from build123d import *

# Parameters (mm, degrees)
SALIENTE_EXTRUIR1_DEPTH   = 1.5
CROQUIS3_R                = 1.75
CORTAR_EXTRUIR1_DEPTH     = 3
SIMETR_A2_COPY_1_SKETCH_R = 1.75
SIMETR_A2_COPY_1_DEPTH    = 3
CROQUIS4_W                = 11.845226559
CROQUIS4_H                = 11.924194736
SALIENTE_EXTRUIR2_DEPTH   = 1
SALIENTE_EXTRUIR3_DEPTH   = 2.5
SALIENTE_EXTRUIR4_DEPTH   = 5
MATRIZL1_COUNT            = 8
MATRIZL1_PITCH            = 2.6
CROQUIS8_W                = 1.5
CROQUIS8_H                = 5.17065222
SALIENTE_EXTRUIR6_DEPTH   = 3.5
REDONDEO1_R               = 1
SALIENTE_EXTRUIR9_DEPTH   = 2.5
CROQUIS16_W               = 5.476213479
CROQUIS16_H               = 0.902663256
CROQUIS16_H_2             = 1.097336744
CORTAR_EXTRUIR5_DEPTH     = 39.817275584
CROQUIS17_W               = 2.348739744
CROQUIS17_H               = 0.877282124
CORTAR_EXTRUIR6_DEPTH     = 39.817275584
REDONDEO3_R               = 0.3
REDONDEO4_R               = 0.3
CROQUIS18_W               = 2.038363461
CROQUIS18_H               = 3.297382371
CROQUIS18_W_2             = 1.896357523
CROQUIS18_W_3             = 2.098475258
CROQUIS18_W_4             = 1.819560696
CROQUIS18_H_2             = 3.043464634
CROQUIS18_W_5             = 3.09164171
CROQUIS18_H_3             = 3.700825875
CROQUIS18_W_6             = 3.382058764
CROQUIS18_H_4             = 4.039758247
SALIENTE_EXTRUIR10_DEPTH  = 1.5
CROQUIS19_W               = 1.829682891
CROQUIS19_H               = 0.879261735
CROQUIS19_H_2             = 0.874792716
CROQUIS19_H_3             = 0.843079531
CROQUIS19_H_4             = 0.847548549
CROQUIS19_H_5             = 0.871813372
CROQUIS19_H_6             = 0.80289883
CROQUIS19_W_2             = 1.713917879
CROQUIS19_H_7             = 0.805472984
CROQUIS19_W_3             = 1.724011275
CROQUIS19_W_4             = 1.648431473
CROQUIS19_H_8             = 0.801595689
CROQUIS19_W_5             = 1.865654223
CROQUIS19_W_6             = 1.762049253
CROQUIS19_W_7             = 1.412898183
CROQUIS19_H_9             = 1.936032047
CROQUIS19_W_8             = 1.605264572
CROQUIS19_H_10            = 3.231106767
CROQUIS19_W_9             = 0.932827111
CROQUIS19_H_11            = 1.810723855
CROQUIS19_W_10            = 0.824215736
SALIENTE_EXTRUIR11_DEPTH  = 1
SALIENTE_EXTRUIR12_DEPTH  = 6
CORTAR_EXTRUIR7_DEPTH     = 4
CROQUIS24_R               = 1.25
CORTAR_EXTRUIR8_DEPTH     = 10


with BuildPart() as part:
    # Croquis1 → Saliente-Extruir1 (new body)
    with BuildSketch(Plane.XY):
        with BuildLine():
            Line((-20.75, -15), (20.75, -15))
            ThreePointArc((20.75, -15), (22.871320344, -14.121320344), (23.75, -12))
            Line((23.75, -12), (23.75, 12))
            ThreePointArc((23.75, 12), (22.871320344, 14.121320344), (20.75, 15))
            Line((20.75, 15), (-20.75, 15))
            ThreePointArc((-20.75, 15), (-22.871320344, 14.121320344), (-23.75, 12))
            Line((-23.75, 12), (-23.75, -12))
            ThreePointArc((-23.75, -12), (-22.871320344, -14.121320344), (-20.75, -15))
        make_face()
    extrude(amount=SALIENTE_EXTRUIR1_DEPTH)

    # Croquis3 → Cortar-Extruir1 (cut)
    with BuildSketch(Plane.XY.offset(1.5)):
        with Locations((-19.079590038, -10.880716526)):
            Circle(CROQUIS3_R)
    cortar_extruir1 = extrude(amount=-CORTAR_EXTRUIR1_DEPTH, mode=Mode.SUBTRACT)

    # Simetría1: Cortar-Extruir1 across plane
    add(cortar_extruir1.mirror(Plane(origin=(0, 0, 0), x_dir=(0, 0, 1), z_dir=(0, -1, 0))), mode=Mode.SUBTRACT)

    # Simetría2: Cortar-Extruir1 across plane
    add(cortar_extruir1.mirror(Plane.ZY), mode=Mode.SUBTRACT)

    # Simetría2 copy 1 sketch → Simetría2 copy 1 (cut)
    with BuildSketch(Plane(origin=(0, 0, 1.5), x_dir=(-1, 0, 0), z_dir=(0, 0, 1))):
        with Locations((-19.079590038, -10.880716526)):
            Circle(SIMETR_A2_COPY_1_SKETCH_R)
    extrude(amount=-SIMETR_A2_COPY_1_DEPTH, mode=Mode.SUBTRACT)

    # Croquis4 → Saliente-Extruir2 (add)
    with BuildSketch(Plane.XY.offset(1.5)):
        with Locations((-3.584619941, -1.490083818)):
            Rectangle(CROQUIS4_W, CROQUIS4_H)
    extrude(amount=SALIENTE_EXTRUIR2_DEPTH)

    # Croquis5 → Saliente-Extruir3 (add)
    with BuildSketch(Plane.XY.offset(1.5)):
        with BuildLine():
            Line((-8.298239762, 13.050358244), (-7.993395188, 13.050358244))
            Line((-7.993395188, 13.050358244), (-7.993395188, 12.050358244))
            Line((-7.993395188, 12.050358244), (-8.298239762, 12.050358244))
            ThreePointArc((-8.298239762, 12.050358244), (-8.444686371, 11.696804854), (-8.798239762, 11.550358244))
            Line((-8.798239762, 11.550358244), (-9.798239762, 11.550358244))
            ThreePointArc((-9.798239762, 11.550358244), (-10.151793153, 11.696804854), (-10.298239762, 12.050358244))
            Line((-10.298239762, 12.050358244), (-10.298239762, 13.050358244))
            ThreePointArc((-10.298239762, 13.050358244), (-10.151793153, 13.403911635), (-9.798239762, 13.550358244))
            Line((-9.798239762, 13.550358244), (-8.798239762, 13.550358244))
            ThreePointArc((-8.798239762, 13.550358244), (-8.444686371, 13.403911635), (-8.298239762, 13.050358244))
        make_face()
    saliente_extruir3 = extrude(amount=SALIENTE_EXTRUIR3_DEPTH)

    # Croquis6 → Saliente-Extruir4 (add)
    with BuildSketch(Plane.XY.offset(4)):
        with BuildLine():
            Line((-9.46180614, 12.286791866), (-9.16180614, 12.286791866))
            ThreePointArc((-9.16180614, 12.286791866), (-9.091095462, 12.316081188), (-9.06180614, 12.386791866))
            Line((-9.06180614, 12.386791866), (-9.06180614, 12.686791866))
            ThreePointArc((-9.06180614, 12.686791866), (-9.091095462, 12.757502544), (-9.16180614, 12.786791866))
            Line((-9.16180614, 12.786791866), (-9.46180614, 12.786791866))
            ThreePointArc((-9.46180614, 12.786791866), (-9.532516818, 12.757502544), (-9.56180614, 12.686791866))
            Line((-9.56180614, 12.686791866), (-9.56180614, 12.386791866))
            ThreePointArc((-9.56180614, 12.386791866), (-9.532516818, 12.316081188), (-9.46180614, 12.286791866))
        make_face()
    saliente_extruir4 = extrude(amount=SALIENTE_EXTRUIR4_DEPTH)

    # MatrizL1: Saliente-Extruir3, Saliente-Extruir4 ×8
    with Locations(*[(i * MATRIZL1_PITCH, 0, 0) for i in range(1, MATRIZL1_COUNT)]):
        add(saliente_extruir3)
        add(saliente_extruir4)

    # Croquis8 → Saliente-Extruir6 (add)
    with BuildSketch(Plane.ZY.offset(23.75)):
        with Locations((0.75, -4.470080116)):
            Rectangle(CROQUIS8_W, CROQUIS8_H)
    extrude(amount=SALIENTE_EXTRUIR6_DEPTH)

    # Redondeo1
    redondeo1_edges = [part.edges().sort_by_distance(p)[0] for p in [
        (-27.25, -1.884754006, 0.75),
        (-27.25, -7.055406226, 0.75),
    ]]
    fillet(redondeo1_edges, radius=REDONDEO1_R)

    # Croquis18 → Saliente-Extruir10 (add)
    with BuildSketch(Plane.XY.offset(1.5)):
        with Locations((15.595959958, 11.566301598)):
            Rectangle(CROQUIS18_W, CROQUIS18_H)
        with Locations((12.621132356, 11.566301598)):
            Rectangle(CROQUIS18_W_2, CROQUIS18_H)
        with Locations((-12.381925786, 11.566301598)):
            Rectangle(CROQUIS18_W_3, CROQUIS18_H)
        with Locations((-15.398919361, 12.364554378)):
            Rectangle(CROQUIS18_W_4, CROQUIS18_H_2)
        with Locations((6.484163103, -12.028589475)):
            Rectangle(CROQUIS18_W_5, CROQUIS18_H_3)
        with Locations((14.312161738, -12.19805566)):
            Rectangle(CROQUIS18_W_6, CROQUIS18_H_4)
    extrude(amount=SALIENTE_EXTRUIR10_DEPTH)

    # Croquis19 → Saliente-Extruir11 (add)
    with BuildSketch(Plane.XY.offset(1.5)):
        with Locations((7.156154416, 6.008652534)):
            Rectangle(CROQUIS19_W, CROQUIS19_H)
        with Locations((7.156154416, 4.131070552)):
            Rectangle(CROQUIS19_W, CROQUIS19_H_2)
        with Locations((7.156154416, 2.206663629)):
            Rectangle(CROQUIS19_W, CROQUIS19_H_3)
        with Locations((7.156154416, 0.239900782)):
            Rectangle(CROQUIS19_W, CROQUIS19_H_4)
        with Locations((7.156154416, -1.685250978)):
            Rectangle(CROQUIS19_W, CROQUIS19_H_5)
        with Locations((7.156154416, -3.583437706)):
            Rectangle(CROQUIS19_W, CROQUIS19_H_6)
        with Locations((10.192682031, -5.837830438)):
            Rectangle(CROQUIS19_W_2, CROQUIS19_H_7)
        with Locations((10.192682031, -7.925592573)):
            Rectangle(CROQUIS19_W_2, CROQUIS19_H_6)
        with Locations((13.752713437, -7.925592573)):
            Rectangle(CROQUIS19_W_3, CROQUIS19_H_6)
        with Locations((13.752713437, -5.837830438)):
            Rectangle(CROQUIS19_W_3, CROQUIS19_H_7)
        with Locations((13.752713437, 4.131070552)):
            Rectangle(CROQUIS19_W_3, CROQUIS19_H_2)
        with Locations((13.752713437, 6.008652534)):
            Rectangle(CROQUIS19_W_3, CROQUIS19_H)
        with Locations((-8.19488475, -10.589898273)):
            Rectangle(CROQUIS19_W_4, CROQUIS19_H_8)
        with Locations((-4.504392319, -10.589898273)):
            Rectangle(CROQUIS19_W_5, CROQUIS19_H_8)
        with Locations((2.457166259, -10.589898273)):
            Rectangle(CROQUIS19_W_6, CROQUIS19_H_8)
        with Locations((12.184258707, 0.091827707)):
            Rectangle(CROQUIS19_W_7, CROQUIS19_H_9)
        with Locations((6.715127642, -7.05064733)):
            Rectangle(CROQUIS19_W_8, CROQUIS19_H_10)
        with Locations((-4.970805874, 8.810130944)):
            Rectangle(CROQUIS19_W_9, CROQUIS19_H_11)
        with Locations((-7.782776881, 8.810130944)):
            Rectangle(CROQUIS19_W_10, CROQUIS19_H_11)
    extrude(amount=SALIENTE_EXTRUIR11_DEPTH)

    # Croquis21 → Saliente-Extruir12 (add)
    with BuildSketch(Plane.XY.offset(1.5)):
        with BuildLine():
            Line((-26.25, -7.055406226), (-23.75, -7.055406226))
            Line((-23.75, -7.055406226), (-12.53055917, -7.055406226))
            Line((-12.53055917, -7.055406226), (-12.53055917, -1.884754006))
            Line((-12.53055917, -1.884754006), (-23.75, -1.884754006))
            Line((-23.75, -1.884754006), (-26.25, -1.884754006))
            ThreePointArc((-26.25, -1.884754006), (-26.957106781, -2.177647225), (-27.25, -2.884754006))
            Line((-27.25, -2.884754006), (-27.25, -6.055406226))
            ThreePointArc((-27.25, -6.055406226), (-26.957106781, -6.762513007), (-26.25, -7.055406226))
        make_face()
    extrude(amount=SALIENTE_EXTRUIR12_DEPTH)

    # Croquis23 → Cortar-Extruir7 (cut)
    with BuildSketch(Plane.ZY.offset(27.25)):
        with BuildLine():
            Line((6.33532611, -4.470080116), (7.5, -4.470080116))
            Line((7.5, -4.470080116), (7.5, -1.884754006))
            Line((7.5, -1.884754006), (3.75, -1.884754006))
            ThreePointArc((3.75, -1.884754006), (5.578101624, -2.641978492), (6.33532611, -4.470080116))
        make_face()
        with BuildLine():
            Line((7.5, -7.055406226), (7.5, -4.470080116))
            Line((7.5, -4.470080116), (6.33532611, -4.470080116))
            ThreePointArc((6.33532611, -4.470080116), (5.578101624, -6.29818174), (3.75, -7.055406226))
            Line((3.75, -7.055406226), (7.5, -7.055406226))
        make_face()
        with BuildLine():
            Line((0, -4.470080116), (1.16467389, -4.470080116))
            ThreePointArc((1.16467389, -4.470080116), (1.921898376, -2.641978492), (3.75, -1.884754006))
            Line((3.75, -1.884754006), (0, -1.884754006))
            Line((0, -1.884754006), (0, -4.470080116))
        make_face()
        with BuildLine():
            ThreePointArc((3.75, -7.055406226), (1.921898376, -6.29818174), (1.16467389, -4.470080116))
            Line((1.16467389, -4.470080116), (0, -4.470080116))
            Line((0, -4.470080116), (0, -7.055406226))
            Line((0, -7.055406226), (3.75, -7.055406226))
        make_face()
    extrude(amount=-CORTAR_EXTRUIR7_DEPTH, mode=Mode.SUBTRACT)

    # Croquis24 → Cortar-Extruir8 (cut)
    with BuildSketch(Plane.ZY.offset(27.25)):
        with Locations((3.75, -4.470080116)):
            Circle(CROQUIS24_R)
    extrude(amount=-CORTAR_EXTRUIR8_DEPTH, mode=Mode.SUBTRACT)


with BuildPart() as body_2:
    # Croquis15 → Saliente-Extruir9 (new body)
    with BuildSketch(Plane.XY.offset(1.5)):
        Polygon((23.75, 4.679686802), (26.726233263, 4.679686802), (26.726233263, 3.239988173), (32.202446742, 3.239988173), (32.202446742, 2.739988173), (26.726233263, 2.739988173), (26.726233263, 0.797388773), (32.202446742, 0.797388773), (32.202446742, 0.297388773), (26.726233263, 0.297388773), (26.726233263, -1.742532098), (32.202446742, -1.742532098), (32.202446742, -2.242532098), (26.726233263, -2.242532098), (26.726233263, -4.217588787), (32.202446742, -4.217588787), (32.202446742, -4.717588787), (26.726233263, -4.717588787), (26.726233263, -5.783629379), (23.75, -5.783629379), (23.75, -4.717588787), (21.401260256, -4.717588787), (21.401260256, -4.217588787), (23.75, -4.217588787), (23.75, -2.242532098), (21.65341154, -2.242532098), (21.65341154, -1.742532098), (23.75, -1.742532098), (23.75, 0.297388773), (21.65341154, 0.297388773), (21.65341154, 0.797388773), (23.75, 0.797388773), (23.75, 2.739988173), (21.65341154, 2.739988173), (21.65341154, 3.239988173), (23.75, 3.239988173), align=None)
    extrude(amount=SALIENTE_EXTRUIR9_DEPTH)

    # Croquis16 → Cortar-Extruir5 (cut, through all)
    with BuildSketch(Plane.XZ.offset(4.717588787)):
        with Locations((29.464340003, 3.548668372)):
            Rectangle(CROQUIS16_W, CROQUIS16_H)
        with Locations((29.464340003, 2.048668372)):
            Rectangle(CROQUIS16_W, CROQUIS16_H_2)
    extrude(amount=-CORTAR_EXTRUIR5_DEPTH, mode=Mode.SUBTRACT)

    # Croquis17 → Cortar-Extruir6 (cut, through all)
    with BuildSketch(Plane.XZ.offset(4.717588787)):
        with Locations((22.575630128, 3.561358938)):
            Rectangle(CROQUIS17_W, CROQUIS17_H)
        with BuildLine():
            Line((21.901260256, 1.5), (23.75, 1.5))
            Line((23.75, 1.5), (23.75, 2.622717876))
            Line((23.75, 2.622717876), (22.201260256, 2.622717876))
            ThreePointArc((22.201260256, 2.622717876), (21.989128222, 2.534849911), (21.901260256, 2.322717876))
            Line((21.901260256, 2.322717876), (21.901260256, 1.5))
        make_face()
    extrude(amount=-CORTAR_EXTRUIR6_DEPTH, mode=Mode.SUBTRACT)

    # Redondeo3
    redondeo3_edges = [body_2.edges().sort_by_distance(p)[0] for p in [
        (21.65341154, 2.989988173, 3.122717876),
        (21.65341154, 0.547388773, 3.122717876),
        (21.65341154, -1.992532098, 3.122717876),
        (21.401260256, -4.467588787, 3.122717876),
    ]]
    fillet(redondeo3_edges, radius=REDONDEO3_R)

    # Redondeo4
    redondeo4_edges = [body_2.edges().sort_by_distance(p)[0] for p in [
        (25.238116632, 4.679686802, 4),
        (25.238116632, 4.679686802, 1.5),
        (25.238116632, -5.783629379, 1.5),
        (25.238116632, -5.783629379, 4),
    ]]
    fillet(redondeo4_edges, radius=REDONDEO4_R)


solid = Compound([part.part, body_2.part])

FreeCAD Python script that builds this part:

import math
import FreeCAD as App
import Part
import Sketcher

V = App.Vector


def edges_at(feature, points):
    """Names of the edges that pass closest to the given points."""
    edges = feature.Shape.Edges
    near = lambda p: min(range(len(edges)), key=lambda i: edges[i].distToShape(Part.Vertex(*p))[0])
    return sorted({f"Edge{near(p) + 1}" for p in points})


def add_polygon(sketch, points):
    """Adds a closed chain of lines whose ends are joined by coincident constraints."""
    first, n = sketch.GeometryCount, len(points)
    for a, b in zip(points, points[1:] + points[:1]):
        sketch.addGeometry(Part.LineSegment(App.Vector(*a, 0), App.Vector(*b, 0)), False)
    for i in range(n):
        sketch.addConstraint(Sketcher.Constraint("Coincident", first + i, 2, first + (i + 1) % n, 1))

doc = App.newDocument("Part")
body = doc.addObject("PartDesign::Body", "Body")

sketch1 = doc.addObject("Sketcher::SketchObject", "Sketch")
body.addObject(sketch1)
sketch1.AttachmentSupport = (doc.XY_Plane, [""])
sketch1.MapMode = "FlatFace"
sketch1.addGeometry([
    Part.LineSegment(V(-20.8, -15, 0), V(20.8, -15, 0)),
    Part.ArcOfCircle(Part.Circle(V(20.8, -12, 0), V(0, 0, 1), 3), math.radians(-90), math.radians(0)),
    Part.LineSegment(V(23.8, -12, 0), V(23.8, 12, 0)),
    Part.ArcOfCircle(Part.Circle(V(20.8, 12, 0), V(0, 0, 1), 3), math.radians(0), math.radians(90)),
    Part.LineSegment(V(20.8, 15, 0), V(-20.8, 15, 0)),
    Part.ArcOfCircle(Part.Circle(V(-20.8, 12, 0), V(0, 0, 1), 3), math.radians(90), math.radians(180)),
    Part.LineSegment(V(-23.8, 12, 0), V(-23.8, -12, 0)),
    Part.ArcOfCircle(Part.Circle(V(-20.8, -12, 0), V(0, 0, 1), 3), math.radians(180), math.radians(270)),
], False)
sketch1.addConstraint([
    Sketcher.Constraint("Tangent", 0, 2, 1, 1),
    Sketcher.Constraint("Tangent", 1, 2, 2, 1),
    Sketcher.Constraint("Tangent", 2, 2, 3, 1),
    Sketcher.Constraint("Tangent", 3, 2, 4, 1),
    Sketcher.Constraint("Tangent", 4, 2, 5, 1),
    Sketcher.Constraint("Tangent", 5, 2, 6, 1),
    Sketcher.Constraint("Tangent", 6, 2, 7, 1),
    Sketcher.Constraint("Tangent", 7, 2, 0, 1),
    Sketcher.Constraint("Horizontal", 0),
    Sketcher.Constraint("Vertical", 2),
    Sketcher.Constraint("Horizontal", 4),
    Sketcher.Constraint("Vertical", 6),
    Sketcher.Constraint("Equal", 1, 3),
    Sketcher.Constraint("Equal", 3, 5),
    Sketcher.Constraint("Equal", 5, 7),
    Sketcher.Constraint("Symmetric", 1, 3, 5, 3, -1, 1),
    Sketcher.Constraint("Radius", 1, 3.0),
    Sketcher.Constraint("DistanceY", 2, 1, 2, 2, 24.0),
    Sketcher.Constraint("DistanceX", 0, 1, 0, 2, 41.5),
])
pad1 = doc.addObject("PartDesign::Pad", "Pad")
body.addObject(pad1)
pad1.Profile = sketch1
pad1.Length = 1.5

sketch2 = doc.addObject("Sketcher::SketchObject", "Sketch001")
body.addObject(sketch2)
sketch2.AttachmentSupport = (doc.XY_Plane, [""])
sketch2.MapMode = "FlatFace"
sketch2.AttachmentOffset = App.Placement(V(0, 0, 1.5), App.Rotation())
sketch2.addGeometry(Part.Circle(V(-19.1, -10.9, 0), V(0, 0, 1), 1.8), False)
sketch2.addConstraint([
    Sketcher.Constraint("Diameter", 0, 3.5),
    Sketcher.Constraint("DistanceX", 0, 3, -1, 1, 19.07959),
    Sketcher.Constraint("DistanceY", 0, 3, -1, 1, 10.880717),
])
pocket1 = doc.addObject("PartDesign::Pocket", "Pocket")
body.addObject(pocket1)
pocket1.Profile = sketch2
pocket1.Length = 3
doc.recompute()

mirrored = doc.addObject("PartDesign::Mirrored", "Mirrored")
body.addObject(mirrored)
mirrored.Originals = [pocket1]
mirrored.MirrorPlane = (doc.XZ_Plane, [""])
body.Tip = mirrored
doc.recompute()

mirrored2 = doc.addObject("PartDesign::Mirrored", "Mirrored001")
body.addObject(mirrored2)
mirrored2.Originals = [pocket1]
mirrored2.MirrorPlane = (doc.YZ_Plane, [""])
body.Tip = mirrored2

sketch3 = doc.addObject("Sketcher::SketchObject", "Sketch002")
body.addObject(sketch3)
sketch3.AttachmentSupport = (doc.XY_Plane, [""])
sketch3.MapMode = "FlatFace"
sketch3.AttachmentOffset = App.Placement(V(0, 0, 1.5), App.Rotation())
sketch3.addGeometry(Part.Circle(V(19.1, 10.9, 0), V(0, 0, 1), 1.8), False)
sketch3.addConstraint([
    Sketcher.Constraint("Diameter", 0, 3.5),
    Sketcher.Constraint("DistanceX", -1, 1, 0, 3, 19.07959),
    Sketcher.Constraint("DistanceY", -1, 1, 0, 3, 10.880717),
])
pocket2 = doc.addObject("PartDesign::Pocket", "Pocket001")
body.addObject(pocket2)
pocket2.Profile = sketch3
pocket2.Length = 3

sketch4 = doc.addObject("Sketcher::SketchObject", "Sketch003")
body.addObject(sketch4)
sketch4.AttachmentSupport = (doc.XY_Plane, [""])
sketch4.MapMode = "FlatFace"
sketch4.AttachmentOffset = App.Placement(V(0, 0, 1.5), App.Rotation())
add_polygon(sketch4, [(-10, 4), (-10, -7), (2, -7), (2, 4)])
sketch4.addConstraint([
    Sketcher.Constraint("Vertical", 0),
    Sketcher.Constraint("Horizontal", 1),
    Sketcher.Constraint("Vertical", 2),
    Sketcher.Constraint("Horizontal", 3),
    Sketcher.Constraint("DistanceX", 1, 1, 1, 2, 11.845227),
    Sketcher.Constraint("DistanceY", 0, 2, 0, 1, 11.924195),
    Sketcher.Constraint("DistanceY", 0, 2, -1, 1, 7.452181),
    Sketcher.Constraint("DistanceX", 0, 2, -1, 1, 9.507233),
])
pad2 = doc.addObject("PartDesign::Pad", "Pad001")
body.addObject(pad2)
pad2.Profile = sketch4
pad2.Length = 1

sketch5 = doc.addObject("Sketcher::SketchObject", "Sketch004")
body.addObject(sketch5)
sketch5.AttachmentSupport = (doc.XY_Plane, [""])
sketch5.MapMode = "FlatFace"
sketch5.AttachmentOffset = App.Placement(V(0, 0, 1.5), App.Rotation())
sketch5.addGeometry([
    Part.LineSegment(V(-7.99, 13.05, 0), V(-8.3, 13.05, 0)),
    Part.ArcOfCircle(Part.Circle(V(-8.8, 13.05, 0), V(0, 0, 1), 0.5), math.radians(0), math.radians(90)),
    Part.LineSegment(V(-8.8, 13.55, 0), V(-9.8, 13.55, 0)),
    Part.ArcOfCircle(Part.Circle(V(-9.8, 13.05, 0), V(0, 0, 1), 0.5), math.radians(90), math.radians(180)),
    Part.LineSegment(V(-10.3, 13.05, 0), V(-10.3, 12.05, 0)),
    Part.ArcOfCircle(Part.Circle(V(-9.8, 12.05, 0), V(0, 0, 1), 0.5), math.radians(180), math.radians(270)),
    Part.LineSegment(V(-9.8, 11.55, 0), V(-8.8, 11.55, 0)),
    Part.ArcOfCircle(Part.Circle(V(-8.8, 12.05, 0), V(0, 0, 1), 0.5), math.radians(-90), math.radians(0)),
    Part.LineSegment(V(-8.3, 12.05, 0), V(-7.99, 12.05, 0)),
    Part.LineSegment(V(-7.99, 12.05, 0), V(-7.99, 13.05, 0)),
], False)
sketch5.addConstraint([
    Sketcher.Constraint("Coincident", 0, 2, 1, 1),
    Sketcher.Constraint("Tangent", 1, 2, 2, 1),
    Sketcher.Constraint("Tangent", 2, 2, 3, 1),
    Sketcher.Constraint("Tangent", 3, 2, 4, 1),
    Sketcher.Constraint("Tangent", 4, 2, 5, 1),
    Sketcher.Constraint("Tangent", 5, 2, 6, 1),
    Sketcher.Constraint("Tangent", 6, 2, 7, 1),
    Sketcher.Constraint("Coincident", 7, 2, 8, 1),
    Sketcher.Constraint("Coincident", 8, 2, 9, 1),
    Sketcher.Constraint("Coincident", 9, 2, 0, 1),
    Sketcher.Constraint("Horizontal", 0),
    Sketcher.Constraint("Horizontal", 2),
    Sketcher.Constraint("Vertical", 4),
    Sketcher.Constraint("Horizontal", 6),
    Sketcher.Constraint("Horizontal", 8),
    Sketcher.Constraint("Vertical", 9),
    Sketcher.Constraint("Equal", 1, 3),
    Sketcher.Constraint("Equal", 3, 5),
    Sketcher.Constraint("Equal", 5, 7),
    Sketcher.Constraint("Horizontal", 3, 3, 0, 2),
    Sketcher.Constraint("Horizontal", 4, 2, 7, 2),
    Sketcher.Constraint("Vertical", 1, 3, 7, 3),
    Sketcher.Constraint("Equal", 6, 4),
    Sketcher.Constraint("Radius", 1, 0.5),
    Sketcher.Constraint("DistanceX", 2, 2, 2, 1, 1.0),
    Sketcher.Constraint("DistanceX", 0, 2, 0, 1, 0.304845),
    Sketcher.Constraint("DistanceX", 1, 3, -1, 1, 8.79824),
    Sketcher.Constraint("DistanceY", -1, 1, 1, 3, 13.050358),
])
pad3 = doc.addObject("PartDesign::Pad", "Pad002")
body.addObject(pad3)
pad3.Profile = sketch5
pad3.Length = 2.5

sketch6 = doc.addObject("Sketcher::SketchObject", "Sketch005")
body.addObject(sketch6)
sketch6.AttachmentSupport = (doc.XY_Plane, [""])
sketch6.MapMode = "FlatFace"
sketch6.AttachmentOffset = App.Placement(V(0, 0, 4), App.Rotation())
sketch6.addGeometry([
    Part.LineSegment(V(-9.46, 12.29, 0), V(-9.16, 12.29, 0)),
    Part.ArcOfCircle(Part.Circle(V(-9.16, 12.39, 0), V(0, 0, 1), 0.1), math.radians(-90), math.radians(0)),
    Part.LineSegment(V(-9.06, 12.39, 0), V(-9.06, 12.69, 0)),
    Part.ArcOfCircle(Part.Circle(V(-9.16, 12.69, 0), V(0, 0, 1), 0.1), math.radians(0), math.radians(90)),
    Part.LineSegment(V(-9.16, 12.79, 0), V(-9.46, 12.79, 0)),
    Part.ArcOfCircle(Part.Circle(V(-9.46, 12.69, 0), V(0, 0, 1), 0.1), math.radians(90), math.radians(180)),
    Part.LineSegment(V(-9.56, 12.69, 0), V(-9.56, 12.39, 0)),
    Part.ArcOfCircle(Part.Circle(V(-9.46, 12.39, 0), V(0, 0, 1), 0.1), math.radians(180), math.radians(270)),
], False)
sketch6.addConstraint([
    Sketcher.Constraint("Tangent", 0, 2, 1, 1),
    Sketcher.Constraint("Tangent", 1, 2, 2, 1),
    Sketcher.Constraint("Tangent", 2, 2, 3, 1),
    Sketcher.Constraint("Tangent", 3, 2, 4, 1),
    Sketcher.Constraint("Tangent", 4, 2, 5, 1),
    Sketcher.Constraint("Tangent", 5, 2, 6, 1),
    Sketcher.Constraint("Tangent", 6, 2, 7, 1),
    Sketcher.Constraint("Tangent", 7, 2, 0, 1),
    Sketcher.Constraint("Horizontal", 0),
    Sketcher.Constraint("Vertical", 2),
    Sketcher.Constraint("Horizontal", 4),
    Sketcher.Constraint("Vertical", 6),
    Sketcher.Constraint("Equal", 1, 3),
    Sketcher.Constraint("Equal", 3, 5),
    Sketcher.Constraint("Equal", 5, 7),
    Sketcher.Constraint("Equal", 4, 2),
    Sketcher.Constraint("Radius", 1, 0.1),
    Sketcher.Constraint("DistanceX", 0, 1, 0, 2, 0.3),
    Sketcher.Constraint("DistanceY", -1, 1, 1, 3, 12.386792),
    Sketcher.Constraint("DistanceX", 1, 3, -1, 1, 9.161806),
])
pad4 = doc.addObject("PartDesign::Pad", "Pad003")
body.addObject(pad4)
pad4.Profile = sketch6
pad4.Length = 5
doc.recompute()

linearpattern = doc.addObject("PartDesign::LinearPattern", "LinearPattern")
body.addObject(linearpattern)
linearpattern.Originals = [pad3, pad4]
linearpattern.Direction = (doc.X_Axis, [""])
linearpattern.Mode = "offset"
linearpattern.Offset = 2.6
linearpattern.Occurrences = 8
body.Tip = linearpattern

sketch7 = doc.addObject("Sketcher::SketchObject", "Sketch006")
body.addObject(sketch7)
sketch7.AttachmentSupport = (doc.YZ_Plane, [""])
sketch7.MapMode = "FlatFace"
sketch7.AttachmentOffset = App.Placement(V(0, 0, -23.75), App.Rotation())
add_polygon(sketch7, [(-1.9, 0), (-7.1, 0), (-7.1, 1.5), (-1.9, 1.5)])
sketch7.addConstraint([
    Sketcher.Constraint("Horizontal", 0),
    Sketcher.Constraint("Vertical", 1),
    Sketcher.Constraint("Horizontal", 2),
    Sketcher.Constraint("Vertical", 3),
    Sketcher.Constraint("PointOnObject", 0, 2, -1),
    Sketcher.Constraint("DistanceY", 1, 1, 1, 2, 1.5),
    Sketcher.Constraint("DistanceX", 0, 2, 0, 1, 5.170652),
    Sketcher.Constraint("DistanceX", 0, 2, -1, 1, 7.055406),
])
pad5 = doc.addObject("PartDesign::Pad", "Pad004")
body.addObject(pad5)
pad5.Profile = sketch7
pad5.Length = 3.5
pad5.Reversed = True
doc.recompute()

fillet = doc.addObject("PartDesign::Fillet", "Fillet")
body.addObject(fillet)
fillet.Base = (pad5, edges_at(pad5, [(-27.25, -1.885, 0.75), (-27.25, -7.055, 0.75)]))
fillet.Radius = 1

sketch8 = doc.addObject("Sketcher::SketchObject", "Sketch007")
body.addObject(sketch8)
sketch8.AttachmentSupport = (doc.XY_Plane, [""])
sketch8.MapMode = "FlatFace"
sketch8.AttachmentOffset = App.Placement(V(0, 0, 1.5), App.Rotation())
add_polygon(sketch8, [(14.6, 13.2), (14.6, 9.9), (16.6, 9.9), (16.6, 13.2)])
add_polygon(sketch8, [(11.7, 13.2), (11.7, 9.9), (13.6, 9.9), (13.6, 13.2)])
add_polygon(sketch8, [(-13.4, 13.2), (-13.4, 9.9), (-11.3, 9.9), (-11.3, 13.2)])
add_polygon(sketch8, [(-16.3, 13.9), (-16.3, 10.8), (-14.5, 10.8), (-14.5, 13.9)])
add_polygon(sketch8, [(4.9, -10.2), (4.9, -13.9), (8, -13.9), (8, -10.2)])
add_polygon(sketch8, [(12.6, -10.2), (12.6, -14.2), (16, -14.2), (16, -10.2)])
sketch8.addConstraint([
    Sketcher.Constraint("Vertical", 0),
    Sketcher.Constraint("Horizontal", 1),
    Sketcher.Constraint("Vertical", 2),
    Sketcher.Constraint("Horizontal", 3),
    Sketcher.Constraint("Vertical", 4),
    Sketcher.Constraint("Horizontal", 5),
    Sketcher.Constraint("Vertical", 6),
    Sketcher.Constraint("Horizontal", 7),
    Sketcher.Constraint("Vertical", 8),
    Sketcher.Constraint("Horizontal", 9),
    Sketcher.Constraint("Vertical", 10),
    Sketcher.Constraint("Horizontal", 11),
    Sketcher.Constraint("Vertical", 12),
    Sketcher.Constraint("Horizontal", 13),
    Sketcher.Constraint("Vertical", 14),
    Sketcher.Constraint("Horizontal", 15),
    Sketcher.Constraint("Vertical", 16),
    Sketcher.Constraint("Horizontal", 17),
    Sketcher.Constraint("Vertical", 18),
    Sketcher.Constraint("Horizontal", 19),
    Sketcher.Constraint("Vertical", 20),
    Sketcher.Constraint("Horizontal", 21),
    Sketcher.Constraint("Vertical", 22),
    Sketcher.Constraint("Horizontal", 23),
    Sketcher.Constraint("Horizontal", 1, 2, 4, 2),
    Sketcher.Constraint("Horizontal", 3, 2, 6, 2),
    Sketcher.Constraint("Horizontal", 5, 2, 8, 2),
    Sketcher.Constraint("Horizontal", 7, 2, 10, 2),
    Sketcher.Constraint("Horizontal", 19, 2, 22, 2),
    Sketcher.Constraint("DistanceX", 9, 2, 5, 2, 24.901999),
    Sketcher.Constraint("DistanceX", 13, 1, 13, 2, 1.819561),
    Sketcher.Constraint("DistanceX", 17, 1, 17, 2, 3.091642),
    Sketcher.Constraint("DistanceX", 21, 1, 21, 2, 3.382059),
    Sketcher.Constraint("DistanceY", 20, 2, 20, 1, 4.039758),
    Sketcher.Constraint("DistanceX", 12, 2, -1, 1, 16.3087),
    Sketcher.Constraint("DistanceX", 16, 2, 1, 2, 11.676799),
    Sketcher.Constraint("DistanceX", 1, 1, 1, 2, 2.038363),
    Sketcher.Constraint("DistanceX", 5, 1, 5, 2, 1.896358),
    Sketcher.Constraint("DistanceX", 9, 1, 9, 2, 2.098475),
    Sketcher.Constraint("DistanceY", 0, 2, 0, 1, 3.297382),
    Sketcher.Constraint("DistanceY", 12, 2, 12, 1, 3.043465),
    Sketcher.Constraint("DistanceY", 16, 2, 16, 1, 3.700826),
    Sketcher.Constraint("DistanceX", -1, 1, 0, 2, 14.576778),
    Sketcher.Constraint("DistanceY", -1, 1, 0, 2, 9.91761),
    Sketcher.Constraint("DistanceX", -1, 1, 5, 2, 13.569311),
    Sketcher.Constraint("DistanceX", -1, 1, 21, 2, 16.003191),
    Sketcher.Constraint("DistanceY", 8, 2, 12, 2, 0.925212),
    Sketcher.Constraint("DistanceY", 16, 2, -1, 1, 13.879002),
])
pad6 = doc.addObject("PartDesign::Pad", "Pad005")
body.addObject(pad6)
pad6.Profile = sketch8
pad6.Length = 1.5

sketch9 = doc.addObject("Sketcher::SketchObject", "Sketch008")
body.addObject(sketch9)
sketch9.AttachmentSupport = (doc.XY_Plane, [""])
sketch9.MapMode = "FlatFace"
sketch9.AttachmentOffset = App.Placement(V(0, 0, 1.5), App.Rotation())
add_polygon(sketch9, [(6.2, 6.4), (6.2, 5.6), (8.1, 5.6), (8.1, 6.4)])
add_polygon(sketch9, [(6.2, 4.6), (6.2, 3.7), (8.1, 3.7), (8.1, 4.6)])
add_polygon(sketch9, [(6.2, 2.6), (6.2, 1.8), (8.1, 1.8), (8.1, 2.6)])
add_polygon(sketch9, [(6.2, 0.7), (6.2, -0.2), (8.1, -0.2), (8.1, 0.7)])
add_polygon(sketch9, [(6.2, -1.2), (6.2, -2.1), (8.1, -2.1), (8.1, -1.2)])
add_polygon(sketch9, [(6.2, -3.2), (6.2, -4), (8.1, -4), (8.1, -3.2)])
add_polygon(sketch9, [(9.3, -5.4), (9.3, -6.2), (11, -6.2), (11, -5.4)])
add_polygon(sketch9, [(9.3, -7.5), (9.3, -8.3), (11, -8.3), (11, -7.5)])
add_polygon(sketch9, [(12.9, -7.5), (12.9, -8.3), (14.6, -8.3), (14.6, -7.5)])
add_polygon(sketch9, [(12.9, -5.4), (12.9, -6.2), (14.6, -6.2), (14.6, -5.4)])
add_polygon(sketch9, [(12.9, 4.6), (12.9, 3.7), (14.6, 3.7), (14.6, 4.6)])
add_polygon(sketch9, [(12.9, 6.4), (12.9, 5.6), (14.6, 5.6), (14.6, 6.4)])
add_polygon(sketch9, [(-9, -10.2), (-9, -11), (-7.4, -11), (-7.4, -10.2)])
add_polygon(sketch9, [(-5.4, -10.2), (-5.4, -11), (-3.6, -11), (-3.6, -10.2)])
add_polygon(sketch9, [(1.6, -10.2), (1.6, -11), (3.3, -11), (3.3, -10.2)])
add_polygon(sketch9, [(11.5, 1.1), (11.5, -0.9), (12.9, -0.9), (12.9, 1.1)])
add_polygon(sketch9, [(5.9, -5.4), (5.9, -8.7), (7.5, -8.7), (7.5, -5.4)])
add_polygon(sketch9, [(-5.4, 9.7), (-5.4, 7.9), (-4.5, 7.9), (-4.5, 9.7)])
add_polygon(sketch9, [(-8.2, 9.7), (-8.2, 7.9), (-7.4, 7.9), (-7.4, 9.7)])
sketch9.addConstraint([
    Sketcher.Constraint("Vertical", 0),
    Sketcher.Constraint("Horizontal", 1),
    Sketcher.Constraint("Vertical", 2),
    Sketcher.Constraint("Horizontal", 3),
    Sketcher.Constraint("Vertical", 4),
    Sketcher.Constraint("Horizontal", 5),
    Sketcher.Constraint("Vertical", 6),
    Sketcher.Constraint("Horizontal", 7),
    Sketcher.Constraint("Vertical", 8),
    Sketcher.Constraint("Horizontal", 9),
    Sketcher.Constraint("Vertical", 10),
    Sketcher.Constraint("Horizontal", 11),
    Sketcher.Constraint("Vertical", 12),
    Sketcher.Constraint("Horizontal", 13),
    Sketcher.Constraint("Vertical", 14),
    Sketcher.Constraint("Horizontal", 15),
    Sketcher.Constraint("Vertical", 16),
    Sketcher.Constraint("Horizontal", 17),
    Sketcher.Constraint("Vertical", 18),
    Sketcher.Constraint("Horizontal", 19),
    Sketcher.Constraint("Vertical", 20),
    Sketcher.Constraint("Horizontal", 21),
    Sketcher.Constraint("Vertical", 22),
    Sketcher.Constraint("Horizontal", 23),
    Sketcher.Constraint("Vertical", 24),
    Sketcher.Constraint("Horizontal", 25),
    Sketcher.Constraint("Vertical", 26),
    Sketcher.Constraint("Horizontal", 27),
    Sketcher.Constraint("Vertical", 28),
    Sketcher.Constraint("Horizontal", 29),
    Sketcher.Constraint("Vertical", 30),
    Sketcher.Constraint("Horizontal", 31),
    Sketcher.Constraint("Vertical", 32),
    Sketcher.Constraint("Horizontal", 33),
    Sketcher.Constraint("Vertical", 34),
    Sketcher.Constraint("Horizontal", 35),
    Sketcher.Constraint("Vertical", 36),
    Sketcher.Constraint("Horizontal", 37),
    Sketcher.Constraint("Vertical", 38),
    Sketcher.Constraint("Horizontal", 39),
    Sketcher.Constraint("Vertical", 40),
    Sketcher.Constraint("Horizontal", 41),
    Sketcher.Constraint("Vertical", 42),
    Sketcher.Constraint("Horizontal", 43),
    Sketcher.Constraint("Vertical", 44),
    Sketcher.Constraint("Horizontal", 45),
    Sketcher.Constraint("Vertical", 46),
    Sketcher.Constraint("Horizontal", 47),
    Sketcher.Constraint("Vertical", 48),
    Sketcher.Constraint("Horizontal", 49),
    Sketcher.Constraint("Vertical", 50),
    Sketcher.Constraint("Horizontal", 51),
    Sketcher.Constraint("Vertical", 52),
    Sketcher.Constraint("Horizontal", 53),
    Sketcher.Constraint("Vertical", 54),
    Sketcher.Constraint("Horizontal", 55),
    Sketcher.Constraint("Vertical", 56),
    Sketcher.Constraint("Horizontal", 57),
    Sketcher.Constraint("Vertical", 58),
    Sketcher.Constraint("Horizontal", 59),
    Sketcher.Constraint("Vertical", 60),
    Sketcher.Constraint("Horizontal", 61),
    Sketcher.Constraint("Vertical", 62),
    Sketcher.Constraint("Horizontal", 63),
    Sketcher.Constraint("Vertical", 64),
    Sketcher.Constraint("Horizontal", 65),
    Sketcher.Constraint("Vertical", 66),
    Sketcher.Constraint("Horizontal", 67),
    Sketcher.Constraint("Vertical", 68),
    Sketcher.Constraint("Horizontal", 69),
    Sketcher.Constraint("Vertical", 70),
    Sketcher.Constraint("Horizontal", 71),
    Sketcher.Constraint("Vertical", 72),
    Sketcher.Constraint("Horizontal", 73),
    Sketcher.Constraint("Vertical", 74),
    Sketcher.Constraint("Horizontal", 75),
    Sketcher.Constraint("Horizontal", 29, 2, 32, 2),
    Sketcher.Constraint("Horizontal", 31, 2, 34, 2),
    Sketcher.Constraint("Horizontal", 25, 2, 36, 2),
    Sketcher.Constraint("Horizontal", 27, 2, 38, 2),
    Sketcher.Constraint("Horizontal", 5, 2, 40, 2),
    Sketcher.Constraint("Horizontal", 7, 2, 42, 2),
    Sketcher.Constraint("Horizontal", 1, 2, 44, 2),
    Sketcher.Constraint("Horizontal", 3, 2, 46, 2),
    Sketcher.Constraint("Horizontal", 49, 2, 52, 2),
    Sketcher.Constraint("Horizontal", 51, 2, 54, 2),
    Sketcher.Constraint("Horizontal", 53, 2, 56, 2),
    Sketcher.Constraint("Horizontal", 55, 2, 58, 2),
    Sketcher.Constraint("Horizontal", 39, 2, 66, 2),
    Sketcher.Constraint("Horizontal", 69, 2, 72, 2),
    Sketcher.Constraint("Horizontal", 71, 2, 74, 2),
    Sketcher.Constraint("Vertical", 3, 2, 4, 2),
    Sketcher.Constraint("Vertical", 2, 2, 5, 2),
    Sketcher.Constraint("Vertical", 7, 2, 8, 2),
    Sketcher.Constraint("Vertical", 6, 2, 9, 2),
    Sketcher.Constraint("Vertical", 11, 2, 12, 2),
    Sketcher.Constraint("Vertical", 10, 2, 13, 2),
    Sketcher.Constraint("Vertical", 15, 2, 16, 2),
    Sketcher.Constraint("Vertical", 14, 2, 17, 2),
    Sketcher.Constraint("Vertical", 19, 2, 20, 2),
    Sketcher.Constraint("Vertical", 18, 2, 21, 2),
    Sketcher.Constraint("Vertical", 27, 2, 28, 2),
    Sketcher.Constraint("Vertical", 26, 2, 29, 2),
    Sketcher.Constraint("Vertical", 35, 2, 36, 2),
    Sketcher.Constraint("Vertical", 34, 2, 37, 2),
    Sketcher.Constraint("Vertical", 39, 2, 40, 2),
    Sketcher.Constraint("Vertical", 38, 2, 41, 2),
    Sketcher.Constraint("Vertical", 43, 2, 44, 2),
    Sketcher.Constraint("Vertical", 42, 2, 45, 2),
    Sketcher.Constraint("Vertical", 47, 2, 61, 2),
    Sketcher.Constraint("Vertical", 55, 2, 68, 2),
    Sketcher.Constraint("Vertical", 50, 2, 73, 2),
    Sketcher.Constraint("Equal", 22, 28),
    Sketcher.Constraint("DistanceX", 61, 1, 61, 2, 1.412898),
    Sketcher.Constraint("DistanceY", 20, 2, 20, 1, 0.802899),
    Sketcher.Constraint("DistanceX", 33, 1, 33, 2, 1.724011),
    Sketcher.Constraint("DistanceX", 49, 1, 49, 2, 1.648431),
    Sketcher.Constraint("DistanceX", 57, 1, 57, 2, 1.762049),
    Sketcher.Constraint("DistanceY", 0, 2, 0, 1, 0.879262),
    Sketcher.Constraint("DistanceY", 8, 2, 8, 1, 0.84308),
    Sketcher.Constraint("DistanceY", 12, 2, 12, 1, 0.847549),
    Sketcher.Constraint("DistanceX", 48, 2, -1, 1, 9.0191),
    Sketcher.Constraint("DistanceY", 50, 2, -1, 1, 10.1891),
    Sketcher.Constraint("DistanceY", 64, 2, -1, 1, 8.666201),
    Sketcher.Constraint("DistanceX", 1, 1, 1, 2, 1.829683),
    Sketcher.Constraint("DistanceX", 25, 1, 25, 2, 1.713918),
    Sketcher.Constraint("DistanceX", 53, 1, 53, 2, 1.865654),
    Sketcher.Constraint("DistanceX", 65, 1, 65, 2, 1.605265),
    Sketcher.Constraint("DistanceX", 69, 1, 69, 2, 0.932827),
    Sketcher.Constraint("DistanceX", 73, 1, 73, 2, 0.824216),
    Sketcher.Constraint("DistanceY", 4, 2, 4, 1, 0.874793),
    Sketcher.Constraint("DistanceY", 16, 2, 16, 1, 0.871813),
    Sketcher.Constraint("DistanceY", 24, 2, 24, 1, 0.805473),
    Sketcher.Constraint("DistanceY", 48, 2, 48, 1, 0.801596),
    Sketcher.Constraint("DistanceY", 60, 2, 60, 1, 1.936032),
    Sketcher.Constraint("DistanceY", 64, 2, 64, 1, 3.231107),
    Sketcher.Constraint("DistanceY", 68, 2, 68, 1, 1.810724),
    Sketcher.Constraint("DistanceY", -1, 1, 0, 2, 5.569022),
    Sketcher.Constraint("DistanceY", 22, 2, -1, 1, 3.181988),
    Sketcher.Constraint("DistanceX", -1, 1, 25, 2, 11.049641),
    Sketcher.Constraint("DistanceY", 28, 2, -1, 1, 8.327042),
    Sketcher.Constraint("DistanceX", -1, 1, 33, 2, 14.614719),
    Sketcher.Constraint("DistanceX", 52, 2, -1, 1, 5.437219),
    Sketcher.Constraint("DistanceX", -1, 1, 56, 2, 1.576142),
    Sketcher.Constraint("DistanceY", 60, 2, -1, 1, 0.876188),
    Sketcher.Constraint("DistanceX", -1, 1, 65, 2, 7.51776),
    Sketcher.Constraint("DistanceY", -1, 1, 68, 2, 7.904769),
    Sketcher.Constraint("DistanceX", -1, 1, 0, 2, 6.241313),
    Sketcher.Constraint("DistanceY", -1, 1, 4, 2, 3.693674),
    Sketcher.Constraint("DistanceY", -1, 1, 8, 2, 1.785124),
    Sketcher.Constraint("DistanceY", 12, 2, -1, 1, 0.183873),
    Sketcher.Constraint("DistanceY", 16, 2, -1, 1, 2.121158),
])
pad7 = doc.addObject("PartDesign::Pad", "Pad006")
body.addObject(pad7)
pad7.Profile = sketch9
pad7.Length = 1

sketch10 = doc.addObject("Sketcher::SketchObject", "Sketch009")
body.addObject(sketch10)
sketch10.AttachmentSupport = (doc.XY_Plane, [""])
sketch10.MapMode = "FlatFace"
sketch10.AttachmentOffset = App.Placement(V(0, 0, 1.5), App.Rotation())
sketch10.addGeometry([
    Part.LineSegment(V(-26.2, -7.1, 0), V(-12.5, -7.1, 0)),
    Part.LineSegment(V(-12.5, -7.1, 0), V(-12.5, -1.9, 0)),
    Part.LineSegment(V(-12.5, -1.9, 0), V(-26.2, -1.9, 0)),
    Part.ArcOfCircle(Part.Circle(V(-26.2, -2.9, 0), V(0, 0, 1), 1), math.radians(90), math.radians(180)),
    Part.LineSegment(V(-27.2, -2.9, 0), V(-27.2, -6.1, 0)),
    Part.ArcOfCircle(Part.Circle(V(-26.2, -6.1, 0), V(0, 0, 1), 1), math.radians(-180), math.radians(-90)),
], False)
sketch10.addConstraint([
    Sketcher.Constraint("Coincident", 0, 2, 1, 1),
    Sketcher.Constraint("Coincident", 1, 2, 2, 1),
    Sketcher.Constraint("Tangent", 2, 2, 3, 1),
    Sketcher.Constraint("Tangent", 3, 2, 4, 1),
    Sketcher.Constraint("Tangent", 4, 2, 5, 1),
    Sketcher.Constraint("Tangent", 5, 2, 0, 1),
    Sketcher.Constraint("Horizontal", 0),
    Sketcher.Constraint("Vertical", 1),
    Sketcher.Constraint("Horizontal", 2),
    Sketcher.Constraint("Vertical", 4),
    Sketcher.Constraint("Equal", 3, 5),
    Sketcher.Constraint("Radius", 3, 1.0),
    Sketcher.Constraint("DistanceX", 3, 3, -1, 1, 26.25),
    Sketcher.Constraint("DistanceX", 0, 1, 0, 2, 13.719441),
    Sketcher.Constraint("DistanceY", 1, 1, 1, 2, 5.170652),
    Sketcher.Constraint("DistanceY", 3, 3, -1, 1, 2.884754),
])
pad8 = doc.addObject("PartDesign::Pad", "Pad007")
body.addObject(pad8)
pad8.Profile = sketch10
pad8.Length = 6

sketch11 = doc.addObject("Sketcher::SketchObject", "Sketch010")
body.addObject(sketch11)
sketch11.AttachmentSupport = (doc.YZ_Plane, [""])
sketch11.MapMode = "FlatFace"
sketch11.AttachmentOffset = App.Placement(V(0, 0, -27.25), App.Rotation())
sketch11.addGeometry([
    Part.LineSegment(V(-1.9, 7.5, 0), V(-1.9, 3.8, 0)),
    Part.ArcOfCircle(Part.Circle(V(-4.5, 3.8, 0), V(0, 0, 1), 2.6), math.radians(0), math.radians(90)),
    Part.ArcOfCircle(Part.Circle(V(-4.5, 3.8, 0), V(0, 0, 1), 2.6), math.radians(90), math.radians(180)),
    Part.LineSegment(V(-7.1, 3.8, 0), V(-7.1, 7.5, 0)),
    Part.LineSegment(V(-7.1, 7.5, 0), V(-1.9, 7.5, 0)),
    Part.ArcOfCircle(Part.Circle(V(-4.5, 3.8, 0), V(0, 0, 1), 2.6), math.radians(-90), math.radians(0)),
    Part.LineSegment(V(-1.9, 3.8, 0), V(-1.9, 0, 0)),
    Part.LineSegment(V(-1.9, 0, 0), V(-7.1, 0, 0)),
    Part.LineSegment(V(-7.1, 0, 0), V(-7.1, 3.8, 0)),
    Part.ArcOfCircle(Part.Circle(V(-4.5, 3.8, 0), V(0, 0, 1), 2.6), math.radians(180), math.radians(270)),
], False)
sketch11.addConstraint([
    Sketcher.Constraint("Tangent", 0, 2, 1, 1),
    Sketcher.Constraint("Tangent", 1, 2, 2, 1),
    Sketcher.Constraint("Tangent", 2, 2, 3, 1),
    Sketcher.Constraint("Coincident", 3, 2, 4, 1),
    Sketcher.Constraint("Coincident", 4, 2, 0, 1),
    Sketcher.Constraint("Tangent", 5, 2, 6, 1),
    Sketcher.Constraint("Coincident", 6, 2, 7, 1),
    Sketcher.Constraint("Coincident", 7, 2, 8, 1),
    Sketcher.Constraint("Tangent", 8, 2, 9, 1),
    Sketcher.Constraint("Tangent", 9, 2, 5, 1),
    Sketcher.Constraint("Vertical", 0),
    Sketcher.Constraint("Vertical", 3),
    Sketcher.Constraint("Horizontal", 4),
    Sketcher.Constraint("Vertical", 6),
    Sketcher.Constraint("Horizontal", 7),
    Sketcher.Constraint("Vertical", 8),
    Sketcher.Constraint("Coincident", 5, 3, 1, 3),
    Sketcher.Constraint("Coincident", 8, 2, 2, 2),
    Sketcher.Constraint("Equal", 1, 2),
    Sketcher.Constraint("PointOnObject", 6, 2, -1),
    Sketcher.Constraint("Vertical", 9, 3, 1, 2),
    Sketcher.Constraint("Vertical", 1, 2, 9, 2),
    Sketcher.Constraint("Equal", 3, 6),
    Sketcher.Constraint("DistanceY", 0, 2, 0, 1, 3.75),
    Sketcher.Constraint("Radius", 1, 2.585326),
    Sketcher.Constraint("DistanceX", 1, 3, -1, 1, 4.47008),
])
pocket3 = doc.addObject("PartDesign::Pocket", "Pocket002")
body.addObject(pocket3)
pocket3.Profile = sketch11
pocket3.Length = 4
pocket3.Reversed = True

sketch12 = doc.addObject("Sketcher::SketchObject", "Sketch011")
body.addObject(sketch12)
sketch12.AttachmentSupport = (doc.YZ_Plane, [""])
sketch12.MapMode = "FlatFace"
sketch12.AttachmentOffset = App.Placement(V(0, 0, -27.25), App.Rotation())
sketch12.addGeometry(Part.Circle(V(-4.5, 3.8, 0), V(0, 0, 1), 1.2), False)
sketch12.addConstraint([
    Sketcher.Constraint("Diameter", 0, 2.5),
    Sketcher.Constraint("DistanceY", -1, 1, 0, 3, 3.75),
    Sketcher.Constraint("DistanceX", 0, 3, -1, 1, 4.47008),
])
pocket4 = doc.addObject("PartDesign::Pocket", "Pocket003")
body.addObject(pocket4)
pocket4.Profile = sketch12
pocket4.Length = 10
pocket4.Reversed = True
body2 = doc.addObject("PartDesign::Body", "Body001")

sketch13 = doc.addObject("Sketcher::SketchObject", "Sketch012")
body2.addObject(sketch13)
sketch13.AttachmentSupport = (doc.getObject("XY_Plane001"), [""])
sketch13.MapMode = "FlatFace"
sketch13.AttachmentOffset = App.Placement(V(0, 0, 1.5), App.Rotation())
add_polygon(sketch13, [(26.73, 4.68), (23.75, 4.68), (23.75, 3.24), (21.65, 3.24), (21.65, 2.74), (23.75, 2.74), (23.75, 0.8), (21.65, 0.8), (21.65, 0.3), (23.75, 0.3), (23.75, -1.74), (21.65, -1.74), (21.65, -2.24), (23.75, -2.24), (23.75, -4.22), (21.4, -4.22), (21.4, -4.72), (23.75, -4.72), (23.75, -5.78), (26.73, -5.78), (26.73, -4.72), (32.2, -4.72), (32.2, -4.22), (26.73, -4.22), (26.73, -2.24), (32.2, -2.24), (32.2, -1.74), (26.73, -1.74), (26.73, 0.3), (32.2, 0.3), (32.2, 0.8), (26.73, 0.8), (26.73, 2.74), (32.2, 2.74), (32.2, 3.24), (26.73, 3.24)])
sketch13.addConstraint([
    Sketcher.Constraint("Horizontal", 0),
    Sketcher.Constraint("Vertical", 1),
    Sketcher.Constraint("Horizontal", 2),
    Sketcher.Constraint("Vertical", 3),
    Sketcher.Constraint("Horizontal", 4),
    Sketcher.Constraint("Vertical", 5),
    Sketcher.Constraint("Horizontal", 6),
    Sketcher.Constraint("Vertical", 7),
    Sketcher.Constraint("Horizontal", 8),
    Sketcher.Constraint("Vertical", 9),
    Sketcher.Constraint("Horizontal", 10),
    Sketcher.Constraint("Vertical", 11),
    Sketcher.Constraint("Horizontal", 12),
    Sketcher.Constraint("Vertical", 13),
    Sketcher.Constraint("Horizontal", 14),
    Sketcher.Constraint("Vertical", 15),
    Sketcher.Constraint("Horizontal", 16),
    Sketcher.Constraint("Vertical", 17),
    Sketcher.Constraint("Horizontal", 18),
    Sketcher.Constraint("Vertical", 19),
    Sketcher.Constraint("Horizontal", 20),
    Sketcher.Constraint("Vertical", 21),
    Sketcher.Constraint("Horizontal", 22),
    Sketcher.Constraint("Vertical", 23),
    Sketcher.Constraint("Horizontal", 24),
    Sketcher.Constraint("Vertical", 25),
    Sketcher.Constraint("Horizontal", 26),
    Sketcher.Constraint("Vertical", 27),
    Sketcher.Constraint("Horizontal", 28),
    Sketcher.Constraint("Vertical", 29),
    Sketcher.Constraint("Horizontal", 30),
    Sketcher.Constraint("Vertical", 31),
    Sketcher.Constraint("Horizontal", 32),
    Sketcher.Constraint("Vertical", 33),
    Sketcher.Constraint("Horizontal", 34),
    Sketcher.Constraint("Vertical", 35),
    Sketcher.Constraint("Horizontal", 16, 2, 19, 2),
    Sketcher.Constraint("Horizontal", 14, 2, 21, 2),
    Sketcher.Constraint("Horizontal", 12, 2, 23, 2),
    Sketcher.Constraint("Horizontal", 10, 2, 25, 2),
    Sketcher.Constraint("Horizontal", 8, 2, 27, 2),
    Sketcher.Constraint("Horizontal", 6, 2, 29, 2),
    Sketcher.Constraint("Horizontal", 4, 2, 31, 2),
    Sketcher.Constraint("Horizontal", 2, 2, 33, 2),
    Sketcher.Constraint("Vertical", 1, 2, 4, 2),
    Sketcher.Constraint("Vertical", 3, 2, 6, 2),
    Sketcher.Constraint("Vertical", 5, 2, 8, 2),
    Sketcher.Constraint("Vertical", 7, 2, 10, 2),
    Sketcher.Constraint("Vertical", 9, 2, 12, 2),
    Sketcher.Constraint("Vertical", 13, 2, 16, 2),
    Sketcher.Constraint("Vertical", 19, 2, 22, 2),
    Sketcher.Constraint("Vertical", 21, 2, 24, 2),
    Sketcher.Constraint("Vertical", 23, 2, 26, 2),
    Sketcher.Constraint("Vertical", 25, 2, 28, 2),
    Sketcher.Constraint("Vertical", 27, 2, 30, 2),
    Sketcher.Constraint("Vertical", 29, 2, 32, 2),
    Sketcher.Constraint("Vertical", 31, 2, 34, 2),
    Sketcher.Constraint("Equal", 3, 7),
    Sketcher.Constraint("Equal", 7, 11),
    Sketcher.Constraint("Equal", 11, 15),
    Sketcher.Constraint("DistanceY", 3, 2, 3, 1, 0.5),
    Sketcher.Constraint("DistanceX", -1, 1, 0, 2, 23.75),
    Sketcher.Constraint("DistanceY", 1, 2, 1, 1, 1.439699),
    Sketcher.Constraint("DistanceY", 5, 2, 5, 1, 1.942599),
    Sketcher.Constraint("DistanceX", 2, 2, 2, 1, 2.096588),
    Sketcher.Constraint("DistanceX", 14, 2, 14, 1, 2.34874),
    Sketcher.Constraint("DistanceY", 9, 2, 9, 1, 2.039921),
    Sketcher.Constraint("DistanceY", 17, 2, 17, 1, 1.066041),
    Sketcher.Constraint("DistanceX", 0, 2, 0, 1, 2.976233),
    Sketcher.Constraint("DistanceX", 20, 1, 20, 2, 5.476213),
    Sketcher.Constraint("DistanceY", 13, 2, 13, 1, 1.975057),
    Sketcher.Constraint("DistanceY", -1, 1, 1, 2, 3.239988),
])
pad9 = doc.addObject("PartDesign::Pad", "Pad008")
body2.addObject(pad9)
pad9.Profile = sketch13
pad9.Length = 2.5

sketch14 = doc.addObject("Sketcher::SketchObject", "Sketch013")
body2.addObject(sketch14)
sketch14.AttachmentSupport = (doc.getObject("XZ_Plane001"), [""])
sketch14.MapMode = "FlatFace"
sketch14.AttachmentOffset = App.Placement(V(0, 0, 4.717589), App.Rotation())
add_polygon(sketch14, [(26.7, 4), (26.7, 3.1), (32.2, 3.1), (32.2, 4)])
add_polygon(sketch14, [(26.7, 2.6), (26.7, 1.5), (32.2, 1.5), (32.2, 2.6)])
sketch14.addConstraint([
    Sketcher.Constraint("Vertical", 0),
    Sketcher.Constraint("Horizontal", 1),
    Sketcher.Constraint("Vertical", 2),
    Sketcher.Constraint("Horizontal", 3),
    Sketcher.Constraint("Vertical", 4),
    Sketcher.Constraint("Horizontal", 5),
    Sketcher.Constraint("Vertical", 6),
    Sketcher.Constraint("Horizontal", 7),
    Sketcher.Constraint("Vertical", 3, 2, 4, 2),
    Sketcher.Constraint("Vertical", 2, 2, 5, 2),
    Sketcher.Constraint("DistanceY", -1, 1, 2, 2, 4.0),
    Sketcher.Constraint("DistanceY", -1, 1, 4, 2, 1.5),
    Sketcher.Constraint("DistanceY", 6, 2, 1, 2, 0.5),
    Sketcher.Constraint("DistanceX", 1, 1, 1, 2, 5.476213),
    Sketcher.Constraint("DistanceY", 0, 2, 0, 1, 0.902663),
    Sketcher.Constraint("DistanceX", -1, 1, 0, 2, 26.726233),
])
pocket5 = doc.addObject("PartDesign::Pocket", "Pocket004")
body2.addObject(pocket5)
pocket5.Profile = sketch14
pocket5.Type = "ThroughAll"

sketch15 = doc.addObject("Sketcher::SketchObject", "Sketch014")
body2.addObject(sketch15)
sketch15.AttachmentSupport = (doc.getObject("XZ_Plane001"), [""])
sketch15.MapMode = "FlatFace"
sketch15.AttachmentOffset = App.Placement(V(0, 0, 4.717589), App.Rotation())
add_polygon(sketch15, [(21.4, 4), (21.4, 3.12), (23.75, 3.12), (23.75, 4)])
sketch15.addGeometry(Part.LineSegment(V(21.9, 1.5, 0), V(23.75, 1.5, 0)), False)
sketch15.addGeometry(Part.LineSegment(V(23.75, 1.5, 0), V(23.75, 2.62, 0)), False)
sketch15.addGeometry(Part.LineSegment(V(23.75, 2.62, 0), V(22.2, 2.62, 0)), False)
sketch15.addGeometry(Part.ArcOfCircle(Part.Circle(V(22.2, 2.32, 0), V(0, 0, 1), 0.3), math.radians(90), math.radians(180)), False)
sketch15.addGeometry(Part.LineSegment(V(21.9, 2.32, 0), V(21.9, 1.5, 0)), False)
sketch15.addConstraint([
    Sketcher.Constraint("Coincident", 4, 2, 5, 1),
    Sketcher.Constraint("Coincident", 5, 2, 6, 1),
    Sketcher.Constraint("Tangent", 6, 2, 7, 1),
    Sketcher.Constraint("Tangent", 7, 2, 8, 1),
    Sketcher.Constraint("Coincident", 8, 2, 4, 1),
    Sketcher.Constraint("Vertical", 0),
    Sketcher.Constraint("Horizontal", 1),
    Sketcher.Constraint("Vertical", 2),
    Sketcher.Constraint("Horizontal", 3),
    Sketcher.Constraint("Horizontal", 4),
    Sketcher.Constraint("Vertical", 5),
    Sketcher.Constraint("Horizontal", 6),
    Sketcher.Constraint("Vertical", 8),
    Sketcher.Constraint("Vertical", 2, 2, 4, 2),
    Sketcher.Constraint("Radius", 7, 0.3),
    Sketcher.Constraint("DistanceY", -1, 1, 2, 2, 4.0),
    Sketcher.Constraint("DistanceY", -1, 1, 4, 2, 1.5),
    Sketcher.Constraint("DistanceX", 0, 2, 7, 3, 0.8),
    Sketcher.Constraint("DistanceY", 7, 3, 0, 2, 0.8),
    Sketcher.Constraint("DistanceX", -1, 1, 1, 2, 23.75),
    Sketcher.Constraint("DistanceX", 1, 1, 1, 2, 2.34874),
    Sketcher.Constraint("DistanceY", 0, 2, 0, 1, 0.877282),
])
pocket6 = doc.addObject("PartDesign::Pocket", "Pocket005")
body2.addObject(pocket6)
pocket6.Profile = sketch15
pocket6.Type = "ThroughAll"
doc.recompute()

fillet2 = doc.addObject("PartDesign::Fillet", "Fillet001")
body2.addObject(fillet2)
fillet2.Base = (pocket6, edges_at(pocket6, [
    (21.653, 2.99, 3.123),
    (21.653, 0.547, 3.123),
    (21.653, -1.993, 3.123),
    (21.401, -4.468, 3.123),
]))
fillet2.Radius = 0.3
doc.recompute()

fillet3 = doc.addObject("PartDesign::Fillet", "Fillet002")
body2.addObject(fillet3)
fillet3.Base = (fillet2, edges_at(fillet2, [
    (25.238, 4.68, 4),
    (25.238, 4.68, 1.5),
    (25.238, -5.784, 1.5),
    (25.238, -5.784, 4),
]))
fillet3.Radius = 0.3

doc.recompute()
